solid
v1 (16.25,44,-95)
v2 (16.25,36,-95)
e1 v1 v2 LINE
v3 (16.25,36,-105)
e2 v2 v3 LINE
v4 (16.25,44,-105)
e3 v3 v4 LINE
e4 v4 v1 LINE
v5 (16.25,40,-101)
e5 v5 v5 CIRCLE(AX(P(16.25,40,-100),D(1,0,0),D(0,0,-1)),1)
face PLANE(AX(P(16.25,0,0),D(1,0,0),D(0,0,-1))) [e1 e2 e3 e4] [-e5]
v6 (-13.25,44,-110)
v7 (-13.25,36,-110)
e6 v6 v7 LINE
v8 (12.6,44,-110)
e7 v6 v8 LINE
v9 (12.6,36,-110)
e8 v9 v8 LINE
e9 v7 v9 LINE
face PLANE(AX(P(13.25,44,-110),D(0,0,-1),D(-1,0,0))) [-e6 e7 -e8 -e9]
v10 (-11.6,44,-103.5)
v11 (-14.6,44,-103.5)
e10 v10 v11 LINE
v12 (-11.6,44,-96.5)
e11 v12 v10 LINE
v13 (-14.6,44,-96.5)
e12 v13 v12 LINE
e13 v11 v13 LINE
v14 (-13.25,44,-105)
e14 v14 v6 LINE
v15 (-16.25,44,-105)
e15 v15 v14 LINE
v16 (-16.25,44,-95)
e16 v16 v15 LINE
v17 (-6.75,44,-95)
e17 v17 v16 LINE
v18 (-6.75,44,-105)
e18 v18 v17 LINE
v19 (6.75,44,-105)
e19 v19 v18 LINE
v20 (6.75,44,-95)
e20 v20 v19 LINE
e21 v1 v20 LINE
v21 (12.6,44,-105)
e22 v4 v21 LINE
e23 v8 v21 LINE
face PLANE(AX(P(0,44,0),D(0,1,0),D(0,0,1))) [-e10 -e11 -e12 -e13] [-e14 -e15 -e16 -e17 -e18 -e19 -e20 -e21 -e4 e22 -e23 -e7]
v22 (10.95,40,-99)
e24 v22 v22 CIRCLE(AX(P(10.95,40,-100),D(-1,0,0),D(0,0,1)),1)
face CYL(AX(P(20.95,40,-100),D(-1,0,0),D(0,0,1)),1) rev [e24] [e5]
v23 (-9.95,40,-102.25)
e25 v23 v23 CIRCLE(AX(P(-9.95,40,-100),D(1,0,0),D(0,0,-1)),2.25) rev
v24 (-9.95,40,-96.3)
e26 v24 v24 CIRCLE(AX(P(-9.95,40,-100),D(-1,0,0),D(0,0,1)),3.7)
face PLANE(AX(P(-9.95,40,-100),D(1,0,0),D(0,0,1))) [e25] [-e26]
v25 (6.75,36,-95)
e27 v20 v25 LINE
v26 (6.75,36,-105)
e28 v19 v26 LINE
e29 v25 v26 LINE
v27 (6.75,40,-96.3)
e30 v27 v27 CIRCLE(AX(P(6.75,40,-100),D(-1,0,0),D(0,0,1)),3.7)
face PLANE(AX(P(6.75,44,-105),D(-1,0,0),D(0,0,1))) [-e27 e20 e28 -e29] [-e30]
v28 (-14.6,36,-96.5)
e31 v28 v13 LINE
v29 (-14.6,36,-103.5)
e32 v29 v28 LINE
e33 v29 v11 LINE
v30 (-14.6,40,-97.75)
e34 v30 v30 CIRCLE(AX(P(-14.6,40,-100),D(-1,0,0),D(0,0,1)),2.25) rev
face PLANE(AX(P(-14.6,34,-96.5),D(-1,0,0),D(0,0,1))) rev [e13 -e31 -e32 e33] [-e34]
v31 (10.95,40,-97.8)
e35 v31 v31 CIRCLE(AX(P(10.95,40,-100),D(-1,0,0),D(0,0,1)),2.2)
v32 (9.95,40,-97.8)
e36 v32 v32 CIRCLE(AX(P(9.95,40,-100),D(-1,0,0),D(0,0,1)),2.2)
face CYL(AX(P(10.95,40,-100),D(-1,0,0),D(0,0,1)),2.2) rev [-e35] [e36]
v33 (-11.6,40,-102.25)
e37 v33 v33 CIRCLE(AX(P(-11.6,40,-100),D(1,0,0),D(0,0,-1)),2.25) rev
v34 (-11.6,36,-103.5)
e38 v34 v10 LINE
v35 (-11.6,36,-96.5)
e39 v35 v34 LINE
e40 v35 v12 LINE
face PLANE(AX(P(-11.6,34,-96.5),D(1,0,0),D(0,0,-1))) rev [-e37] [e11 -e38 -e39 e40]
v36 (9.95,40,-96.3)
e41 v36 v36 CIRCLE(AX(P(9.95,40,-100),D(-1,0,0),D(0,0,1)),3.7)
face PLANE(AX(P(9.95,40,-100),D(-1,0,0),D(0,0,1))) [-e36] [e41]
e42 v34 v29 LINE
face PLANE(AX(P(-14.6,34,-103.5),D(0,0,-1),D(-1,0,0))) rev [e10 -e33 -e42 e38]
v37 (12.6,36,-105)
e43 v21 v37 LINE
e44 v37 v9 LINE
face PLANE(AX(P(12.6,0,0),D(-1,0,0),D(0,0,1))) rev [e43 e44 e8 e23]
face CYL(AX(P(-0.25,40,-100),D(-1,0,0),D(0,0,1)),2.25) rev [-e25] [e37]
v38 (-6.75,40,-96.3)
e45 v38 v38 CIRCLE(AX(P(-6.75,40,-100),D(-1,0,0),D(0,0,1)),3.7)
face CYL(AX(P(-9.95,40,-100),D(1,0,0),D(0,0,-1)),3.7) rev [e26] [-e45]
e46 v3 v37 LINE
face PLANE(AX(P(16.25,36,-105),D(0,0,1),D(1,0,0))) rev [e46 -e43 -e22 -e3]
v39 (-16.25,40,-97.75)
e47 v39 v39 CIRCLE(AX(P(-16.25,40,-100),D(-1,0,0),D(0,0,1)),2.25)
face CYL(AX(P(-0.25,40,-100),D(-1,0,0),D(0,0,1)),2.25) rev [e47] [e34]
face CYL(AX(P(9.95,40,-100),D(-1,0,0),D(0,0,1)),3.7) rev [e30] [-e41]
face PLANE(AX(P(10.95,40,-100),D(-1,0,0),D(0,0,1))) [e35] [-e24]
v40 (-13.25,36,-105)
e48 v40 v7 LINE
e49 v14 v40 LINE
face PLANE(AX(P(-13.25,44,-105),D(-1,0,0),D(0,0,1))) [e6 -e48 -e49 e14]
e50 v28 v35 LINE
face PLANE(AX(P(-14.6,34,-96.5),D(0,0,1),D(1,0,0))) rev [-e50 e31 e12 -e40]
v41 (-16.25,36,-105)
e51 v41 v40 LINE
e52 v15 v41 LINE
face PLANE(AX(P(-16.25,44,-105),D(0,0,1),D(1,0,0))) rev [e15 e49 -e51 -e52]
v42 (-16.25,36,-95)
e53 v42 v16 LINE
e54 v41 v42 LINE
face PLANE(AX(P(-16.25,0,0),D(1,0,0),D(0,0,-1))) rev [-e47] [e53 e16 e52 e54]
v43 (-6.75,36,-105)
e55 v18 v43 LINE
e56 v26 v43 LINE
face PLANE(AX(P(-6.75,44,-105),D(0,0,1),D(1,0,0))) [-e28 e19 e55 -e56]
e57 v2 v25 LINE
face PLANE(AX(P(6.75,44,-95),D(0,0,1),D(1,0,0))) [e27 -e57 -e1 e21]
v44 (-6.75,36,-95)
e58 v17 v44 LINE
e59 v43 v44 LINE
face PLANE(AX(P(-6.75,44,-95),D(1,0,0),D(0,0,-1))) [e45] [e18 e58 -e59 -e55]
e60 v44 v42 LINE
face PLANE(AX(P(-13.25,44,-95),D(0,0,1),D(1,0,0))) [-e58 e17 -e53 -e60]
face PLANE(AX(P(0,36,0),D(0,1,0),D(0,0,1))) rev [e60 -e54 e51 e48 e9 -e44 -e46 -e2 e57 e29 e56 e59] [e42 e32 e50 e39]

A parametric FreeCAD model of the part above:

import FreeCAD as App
import Part
import Sketcher

doc = App.newDocument("Part")
params = doc.addObject("Spreadsheet::Sheet", "Params")
for row, (alias, value) in enumerate([
    ("sketch1_height", "15 mm"),
    ("sketch1_height2", "10 mm"),
    ("sketch1_width", "26.5 mm"),
    ("sketch1_width2", "6.5 mm"),
    ("pad1_length", "4 mm"),
    ("pad1_length2", "4 mm"),
    ("sketch2_diameter", "4.5 mm"),
    ("pocket1_length", "13 mm"),
    ("sketch3_diameter", "7.4 mm"),
    ("pocket2_length", "3.2 mm"),
    ("sketch4_diameter", "4.4 mm"),
    ("pocket3_length", "1 mm"),
    ("sketch5_diameter", "4.5 mm"),
    ("sketch5_width", "8 mm"),
    ("sketch5_height", "10 mm"),
    ("pad2_length", "3 mm"),
    ("sketch6_width", "3 mm"),
    ("sketch6_height", "7 mm"),
    ("pocket4_length", "10 mm"),
    ("sketch7_width", "8 mm"),
    ("sketch7_height", "10 mm"),
    ("pad3_length", "3 mm"),
    ("sketch8_width", "8 mm"),
    ("sketch8_height", "5 mm"),
    ("pocket5_length", "0.65 mm"),
    ("sketch9_diameter", "2 mm"),
    ("pocket6_length", "10 mm"),
], start=1):
    params.set(f"A{row}", alias)
    params.set(f"B{row}", "=" + value)
    params.setAlias(f"B{row}", alias)

body = doc.addObject("PartDesign::Body", "Body")

# Sketch on XZ plane
sketch1 = body.newObject("Sketcher::SketchObject", "Sketch")
sketch1.AttachmentSupport = (doc.getObject("XZ_Plane"), [""])
sketch1.MapMode = "FlatFace"
sketch1.AttachmentOffset = App.Placement(App.Vector(0, 0, -40), App.Rotation())
sketch1.addGeometry([
    Part.LineSegment(App.Vector(-13.25, -95, 0), App.Vector(-13.25, -110, 0)),  # 0
    Part.LineSegment(App.Vector(-13.25, -110, 0), App.Vector(13.25, -110, 0)),  # 1
    Part.LineSegment(App.Vector(13.25, -110, 0), App.Vector(13.25, -95, 0)),  # 2
    Part.LineSegment(App.Vector(13.25, -95, 0), App.Vector(6.75, -95, 0)),  # 3
    Part.LineSegment(App.Vector(6.75, -95, 0), App.Vector(6.75, -105, 0)),  # 4
    Part.LineSegment(App.Vector(6.75, -105, 0), App.Vector(-6.75, -105, 0)),  # 5
    Part.LineSegment(App.Vector(-6.75, -105, 0), App.Vector(-6.75, -95, 0)),  # 6
    Part.LineSegment(App.Vector(-6.75, -95, 0), App.Vector(-13.25, -95, 0)),  # 7
], False)
sketch1.addConstraint([
    Sketcher.Constraint("Coincident", 0, 2, 1, 1),
    Sketcher.Constraint("Coincident", 1, 2, 2, 1),
    Sketcher.Constraint("Coincident", 2, 2, 3, 1),
    Sketcher.Constraint("Coincident", 3, 2, 4, 1),
    Sketcher.Constraint("Coincident", 4, 2, 5, 1),
    Sketcher.Constraint("Coincident", 5, 2, 6, 1),
    Sketcher.Constraint("Coincident", 6, 2, 7, 1),
    Sketcher.Constraint("Coincident", 7, 2, 0, 1),
    Sketcher.Constraint("Vertical", 0),
    Sketcher.Constraint("Horizontal", 1),
    Sketcher.Constraint("Vertical", 2),
    Sketcher.Constraint("Horizontal", 3),
    Sketcher.Constraint("Vertical", 4),
    Sketcher.Constraint("Horizontal", 5),
    Sketcher.Constraint("Vertical", 6),
    Sketcher.Constraint("Horizontal", 7),
    Sketcher.Constraint("Symmetric", 3, 2, 6, 2, -2),
    Sketcher.Constraint("Equal", 3, 7),
    Sketcher.Constraint("DistanceY", 0, 2, 0, 1, 15.0),
    Sketcher.Constraint("DistanceY", 4, 2, 4, 1, 10.0),
    Sketcher.Constraint("DistanceX", 1, 1, 1, 2, 26.5),
    Sketcher.Constraint("DistanceX", 3, 2, 3, 1, 6.5),
    Sketcher.Constraint("DistanceY", 0, 2, -1, 1, 110.0),
])
sketch1.setExpression("Constraints[18]", "Params.sketch1_height")
sketch1.setExpression("Constraints[19]", "Params.sketch1_height2")
sketch1.setExpression("Constraints[20]", "Params.sketch1_width")
sketch1.setExpression("Constraints[21]", "Params.sketch1_width2")
pad1 = body.newObject("PartDesign::Pad", "Pad")
pad1.Profile = sketch1
pad1.Type = "TwoLengths"
pad1.setExpression("Length", "Params.pad1_length")
pad1.setExpression("Length2", "Params.pad1_length2")

# Sketch on YZ plane
sketch2 = body.newObject("Sketcher::SketchObject", "Sketch001")
sketch2.AttachmentSupport = (doc.getObject("YZ_Plane"), [""])
sketch2.MapMode = "FlatFace"
sketch2.AttachmentOffset = App.Placement(App.Vector(0, 0, -13.25), App.Rotation())
sketch2.addGeometry(Part.Circle(App.Vector(40, -100, 0), App.Vector(0, 0, 1), 2.25), False)
sketch2.addConstraint([
    Sketcher.Constraint("Diameter", 0, 4.5),
    Sketcher.Constraint("DistanceX", -1, 1, 0, 3, 40.0),
    Sketcher.Constraint("DistanceY", 0, 3, -1, 1, 100.0),
])
sketch2.setExpression("Constraints[0]", "Params.sketch2_diameter")
pocket1 = body.newObject("PartDesign::Pocket", "Pocket")
pocket1.Profile = sketch2
pocket1.setExpression("Length", "Params.pocket1_length")
pocket1.Reversed = True

# Sketch on YZ plane
sketch3 = body.newObject("Sketcher::SketchObject", "Sketch002")
sketch3.AttachmentSupport = (doc.getObject("YZ_Plane"), [""])
sketch3.MapMode = "FlatFace"
sketch3.AttachmentOffset = App.Placement(App.Vector(0, 0, 6.75), App.Rotation())
sketch3.addGeometry(Part.Circle(App.Vector(40, -100, 0), App.Vector(0, 0, 1), 3.7), False)
sketch3.addConstraint([
    Sketcher.Constraint("Diameter", 0, 7.4),
    Sketcher.Constraint("DistanceX", -1, 1, 0, 3, 40.0),
    Sketcher.Constraint("DistanceY", 0, 3, -1, 1, 100.0),
])
sketch3.setExpression("Constraints[0]", "Params.sketch3_diameter")
pocket2 = body.newObject("PartDesign::Pocket", "Pocket001")
pocket2.Profile = sketch3
pocket2.setExpression("Length", "Params.pocket2_length")
pocket2.Reversed = True
doc.recompute()

mirrored = body.newObject("PartDesign::Mirrored", "Mirrored")
mirrored.Originals = [pocket2]
mirrored.MirrorPlane = (doc.getObject("YZ_Plane"), [""])
body.Tip = mirrored

# Sketch on YZ plane
sketch4 = body.newObject("Sketcher::SketchObject", "Sketch003")
sketch4.AttachmentSupport = (doc.getObject("YZ_Plane"), [""])
sketch4.MapMode = "FlatFace"
sketch4.AttachmentOffset = App.Placement(App.Vector(0, 0, 9.95), App.Rotation())
sketch4.addGeometry(Part.Circle(App.Vector(40, -100, 0), App.Vector(0, 0, 1), 2.2), False)
sketch4.addConstraint([
    Sketcher.Constraint("Diameter", 0, 4.4),
    Sketcher.Constraint("DistanceX", -1, 1, 0, 3, 40.0),
    Sketcher.Constraint("DistanceY", 0, 3, -1, 1, 100.0),
])
sketch4.setExpression("Constraints[0]", "Params.sketch4_diameter")
pocket3 = body.newObject("PartDesign::Pocket", "Pocket002")
pocket3.Profile = sketch4
pocket3.setExpression("Length", "Params.pocket3_length")
pocket3.Reversed = True

# Sketch on YZ plane
sketch5 = body.newObject("Sketcher::SketchObject", "Sketch004")
sketch5.AttachmentSupport = (doc.getObject("YZ_Plane"), [""])
sketch5.MapMode = "FlatFace"
sketch5.AttachmentOffset = App.Placement(App.Vector(0, 0, -16.25), App.Rotation())
sketch5.addGeometry([
    Part.LineSegment(App.Vector(44, -105, 0), App.Vector(36, -105, 0)),  # 0
    Part.LineSegment(App.Vector(36, -105, 0), App.Vector(36, -95, 0)),  # 1
    Part.LineSegment(App.Vector(36, -95, 0), App.Vector(44, -95, 0)),  # 2
    Part.LineSegment(App.Vector(44, -95, 0), App.Vector(44, -105, 0)),  # 3
    Part.Circle(App.Vector(40, -100, 0), App.Vector(0, 0, 1), 2.25),  # 4
], False)
sketch5.addConstraint([
    Sketcher.Constraint("Coincident", 0, 2, 1, 1),
    Sketcher.Constraint("Coincident", 1, 2, 2, 1),
    Sketcher.Constraint("Coincident", 2, 2, 3, 1),
    Sketcher.Constraint("Coincident", 3, 2, 0, 1),
    Sketcher.Constraint("Horizontal", 0),
    Sketcher.Constraint("Vertical", 1),
    Sketcher.Constraint("Horizontal", 2),
    Sketcher.Constraint("Vertical", 3),
    Sketcher.Constraint("Diameter", 4, 4.5),
    Sketcher.Constraint("DistanceX", 0, 2, 0, 1, 8.0),
    Sketcher.Constraint("DistanceY", 1, 1, 1, 2, 10.0),
    Sketcher.Constraint("DistanceX", -1, 1, 4, 3, 40.0),
    Sketcher.Constraint("DistanceY", 4, 3, -1, 1, 100.0),
    Sketcher.Constraint("DistanceX", -1, 1, 0, 2, 36.0),
    Sketcher.Constraint("DistanceY", 0, 2, -1, 1, 105.0),
])
sketch5.setExpression("Constraints[8]", "Params.sketch5_diameter")
sketch5.setExpression("Constraints[9]", "Params.sketch5_width")
sketch5.setExpression("Constraints[10]", "Params.sketch5_height")
pad2 = body.newObject("PartDesign::Pad", "Pad001")
pad2.Profile = sketch5
pad2.setExpression("Length", "Params.pad2_length")

# Sketch on XZ plane
sketch6 = body.newObject("Sketcher::SketchObject", "Sketch005")
sketch6.AttachmentSupport = (doc.getObject("XZ_Plane"), [""])
sketch6.MapMode = "FlatFace"
sketch6.AttachmentOffset = App.Placement(App.Vector(0, 0, -44), App.Rotation())
sketch6.addGeometry([
    Part.LineSegment(App.Vector(-14.6, -103.5, 0), App.Vector(-14.6, -96.5, 0)),
    Part.LineSegment(App.Vector(-14.6, -96.5, 0), App.Vector(-11.6, -96.5, 0)),
    Part.LineSegment(App.Vector(-11.6, -96.5, 0), App.Vector(-11.6, -103.5, 0)),
    Part.LineSegment(App.Vector(-11.6, -103.5, 0), App.Vector(-14.6, -103.5, 0)),
], False)
sketch6.addConstraint([
    Sketcher.Constraint("Coincident", 0, 2, 1, 1),
    Sketcher.Constraint("Coincident", 1, 2, 2, 1),
    Sketcher.Constraint("Coincident", 2, 2, 3, 1),
    Sketcher.Constraint("Coincident", 3, 2, 0, 1),
    Sketcher.Constraint("Vertical", 0),
    Sketcher.Constraint("Horizontal", 1),
    Sketcher.Constraint("Vertical", 2),
    Sketcher.Constraint("Horizontal", 3),
    Sketcher.Constraint("DistanceX", 1, 1, 1, 2, 3.0),
    Sketcher.Constraint("DistanceY", 0, 1, 0, 2, 7.0),
    Sketcher.Constraint("DistanceX", 0, 2, -1, 1, 14.6),
    Sketcher.Constraint("DistanceY", 0, 2, -1, 1, 96.5),
])
sketch6.setExpression("Constraints[8]", "Params.sketch6_width")
sketch6.setExpression("Constraints[9]", "Params.sketch6_height")
pocket4 = body.newObject("PartDesign::Pocket", "Pocket003")
pocket4.Profile = sketch6
pocket4.setExpression("Length", "Params.pocket4_length")
pocket4.Reversed = True

# Sketch on YZ plane
sketch7 = body.newObject("Sketcher::SketchObject", "Sketch006")
sketch7.AttachmentSupport = (doc.getObject("YZ_Plane"), [""])
sketch7.MapMode = "FlatFace"
sketch7.AttachmentOffset = App.Placement(App.Vector(0, 0, 13.25), App.Rotation())
sketch7.addGeometry([
    Part.LineSegment(App.Vector(44, -95, 0), App.Vector(36, -95, 0)),
    Part.LineSegment(App.Vector(36, -95, 0), App.Vector(36, -105, 0)),
    Part.LineSegment(App.Vector(36, -105, 0), App.Vector(44, -105, 0)),
    Part.LineSegment(App.Vector(44, -105, 0), App.Vector(44, -95, 0)),
], False)
sketch7.addConstraint([
    Sketcher.Constraint("Coincident", 0, 2, 1, 1),
    Sketcher.Constraint("Coincident", 1, 2, 2, 1),
    Sketcher.Constraint("Coincident", 2, 2, 3, 1),
    Sketcher.Constraint("Coincident", 3, 2, 0, 1),
    Sketcher.Constraint("Horizontal", 0),
    Sketcher.Constraint("Vertical", 1),
    Sketcher.Constraint("Horizontal", 2),
    Sketcher.Constraint("Vertical", 3),
    Sketcher.Constraint("DistanceX", 0, 2, 0, 1, 8.0),
    Sketcher.Constraint("DistanceY", 1, 2, 1, 1, 10.0),
    Sketcher.Constraint("DistanceX", -1, 1, 0, 2, 36.0),
    Sketcher.Constraint("DistanceY", 0, 2, -1, 1, 95.0),
])
sketch7.setExpression("Constraints[8]", "Params.sketch7_width")
sketch7.setExpression("Constraints[9]", "Params.sketch7_height")
pad3 = body.newObject("PartDesign::Pad", "Pad002")
pad3.Profile = sketch7
pad3.setExpression("Length", "Params.pad3_length")

# Sketch on YZ plane
sketch8 = body.newObject("Sketcher::SketchObject", "Sketch007")
sketch8.AttachmentSupport = (doc.getObject("YZ_Plane"), [""])
sketch8.MapMode = "FlatFace"
sketch8.AttachmentOffset = App.Placement(App.Vector(0, 0, 13.25), App.Rotation())
sketch8.addGeometry([
    Part.LineSegment(App.Vector(44, -105, 0), App.Vector(36, -105, 0)),
    Part.LineSegment(App.Vector(36, -105, 0), App.Vector(36, -110, 0)),
    Part.LineSegment(App.Vector(36, -110, 0), App.Vector(44, -110, 0)),
    Part.LineSegment(App.Vector(44, -110, 0), App.Vector(44, -105, 0)),
], False)
sketch8.addConstraint([
    Sketcher.Constraint("Coincident", 0, 2, 1, 1),
    Sketcher.Constraint("Coincident", 1, 2, 2, 1),
    Sketcher.Constraint("Coincident", 2, 2, 3, 1),
    Sketcher.Constraint("Coincident", 3, 2, 0, 1),
    Sketcher.Constraint("Horizontal", 0),
    Sketcher.Constraint("Vertical", 1),
    Sketcher.Constraint("Horizontal", 2),
    Sketcher.Constraint("Vertical", 3),
    Sketcher.Constraint("DistanceX", 0, 2, 0, 1, 8.0),
    Sketcher.Constraint("DistanceY", 1, 2, 1, 1, 5.0),
    Sketcher.Constraint("DistanceX", -1, 1, 0, 2, 36.0),
    Sketcher.Constraint("DistanceY", 0, 2, -1, 1, 105.0),
])
sketch8.setExpression("Constraints[8]", "Params.sketch8_width")
sketch8.setExpression("Constraints[9]", "Params.sketch8_height")
pocket5 = body.newObject("PartDesign::Pocket", "Pocket004")
pocket5.Profile = sketch8
pocket5.setExpression("Length", "Params.pocket5_length")

# Sketch on YZ plane
sketch9 = body.newObject("Sketcher::SketchObject", "Sketch008")
sketch9.AttachmentSupport = (doc.getObject("YZ_Plane"), [""])
sketch9.MapMode = "FlatFace"
sketch9.AttachmentOffset = App.Placement(App.Vector(0, 0, 10.95), App.Rotation())
sketch9.addGeometry(Part.Circle(App.Vector(40, -100, 0), App.Vector(0, 0, 1), 1), False)
sketch9.addConstraint([
    Sketcher.Constraint("Diameter", 0, 2.0),
    Sketcher.Constraint("DistanceX", -1, 1, 0, 3, 40.0),
    Sketcher.Constraint("DistanceY", 0, 3, -1, 1, 100.0),
])
sketch9.setExpression("Constraints[0]", "Params.sketch9_diameter")
pocket6 = body.newObject("PartDesign::Pocket", "Pocket005")
pocket6.Profile = sketch9
pocket6.setExpression("Length", "Params.pocket6_length")
pocket6.Reversed = True

doc.recompute()
